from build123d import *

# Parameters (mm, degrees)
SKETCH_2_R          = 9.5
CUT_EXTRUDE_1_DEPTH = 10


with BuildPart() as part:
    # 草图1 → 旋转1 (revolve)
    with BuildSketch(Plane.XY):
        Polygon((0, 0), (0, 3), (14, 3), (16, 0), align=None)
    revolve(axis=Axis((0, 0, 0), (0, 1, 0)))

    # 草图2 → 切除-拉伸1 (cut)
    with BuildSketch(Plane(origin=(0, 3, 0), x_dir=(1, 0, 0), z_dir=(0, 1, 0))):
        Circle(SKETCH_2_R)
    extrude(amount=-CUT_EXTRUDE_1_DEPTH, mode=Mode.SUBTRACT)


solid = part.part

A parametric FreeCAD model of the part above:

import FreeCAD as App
import Part
import Sketcher

V = App.Vector

doc = App.newDocument("Part")
params = doc.addObject("Spreadsheet::Sheet", "Params")
for row, (alias, value) in enumerate([
    ("sketch1_width", "16 mm"),
    ("sketch1_width2", "14 mm"),
    ("sketch1_height", "3 mm"),
    ("revolution_angle", "360 deg"),
    ("sketch2_diameter", "19 mm"),
    ("pocket1_length", "10 mm"),
], start=1):
    params.set(f"A{row}", alias)
    params.set(f"B{row}", "=" + value)
    params.setAlias(f"B{row}", alias)

body = doc.addObject("PartDesign::Body", "Body")

# Sketch on XY plane
sketch1 = body.newObject("Sketcher::SketchObject", "Sketch")
sketch1.AttachmentSupport = (doc.getObject("XY_Plane"), [""])
sketch1.MapMode = "FlatFace"
sketch1.addGeometry([
    Part.LineSegment(V(0, 3, 0), V(0, 0, 0)),
    Part.LineSegment(V(0, 0, 0), V(16, 0, 0)),
    Part.LineSegment(V(16, 0, 0), V(14, 3, 0)),
    Part.LineSegment(V(14, 3, 0), V(0, 3, 0)),
], False)
sketch1.addConstraint([
    Sketcher.Constraint("Coincident", 0, 2, 1, 1),
    Sketcher.Constraint("Coincident", 1, 2, 2, 1),
    Sketcher.Constraint("Coincident", 2, 2, 3, 1),
    Sketcher.Constraint("Coincident", 3, 2, 0, 1),
    Sketcher.Constraint("Vertical", 0),
    Sketcher.Constraint("Horizontal", 1),
    Sketcher.Constraint("Horizontal", 3),
    Sketcher.Constraint("Coincident", 0, 2, -1, 1),
    Sketcher.Constraint("DistanceX", 1, 1, 1, 2, 16.0),
    Sketcher.Constraint("DistanceX", 3, 2, 3, 1, 14.0),
    Sketcher.Constraint("DistanceY", 0, 2, 0, 1, 3.0),
])
sketch1.setExpression("Constraints[8]", "Params.sketch1_width")
sketch1.setExpression("Constraints[9]", "Params.sketch1_width2")
sketch1.setExpression("Constraints[10]", "Params.sketch1_height")
revolution = body.newObject("PartDesign::Revolution", "Revolution")
revolution.Profile = sketch1
revolution.ReferenceAxis = (sketch1, ["V_Axis"])
revolution.setExpression("Angle", "Params.revolution_angle")

# Sketch on XZ plane
sketch2 = body.newObject("Sketcher::SketchObject", "Sketch001")
sketch2.AttachmentSupport = (doc.getObject("XZ_Plane"), [""])
sketch2.MapMode = "FlatFace"
sketch2.AttachmentOffset = App.Placement(V(0, 0, -3), App.Rotation())
sketch2.addGeometry(Part.Circle(V(0, 0, 0), V(0, 0, 1), 10), False)
sketch2.addConstraint([
    Sketcher.Constraint("Coincident", 0, 3, -1, 1),
    Sketcher.Constraint("Diameter", 0, 19.0),
])
sketch2.setExpression("Constraints[1]", "Params.sketch2_diameter")
pocket1 = body.newObject("PartDesign::Pocket", "Pocket")
pocket1.Profile = sketch2
pocket1.setExpression("Length", "Params.pocket1_length")
pocket1.Reversed = True

doc.recompute()
